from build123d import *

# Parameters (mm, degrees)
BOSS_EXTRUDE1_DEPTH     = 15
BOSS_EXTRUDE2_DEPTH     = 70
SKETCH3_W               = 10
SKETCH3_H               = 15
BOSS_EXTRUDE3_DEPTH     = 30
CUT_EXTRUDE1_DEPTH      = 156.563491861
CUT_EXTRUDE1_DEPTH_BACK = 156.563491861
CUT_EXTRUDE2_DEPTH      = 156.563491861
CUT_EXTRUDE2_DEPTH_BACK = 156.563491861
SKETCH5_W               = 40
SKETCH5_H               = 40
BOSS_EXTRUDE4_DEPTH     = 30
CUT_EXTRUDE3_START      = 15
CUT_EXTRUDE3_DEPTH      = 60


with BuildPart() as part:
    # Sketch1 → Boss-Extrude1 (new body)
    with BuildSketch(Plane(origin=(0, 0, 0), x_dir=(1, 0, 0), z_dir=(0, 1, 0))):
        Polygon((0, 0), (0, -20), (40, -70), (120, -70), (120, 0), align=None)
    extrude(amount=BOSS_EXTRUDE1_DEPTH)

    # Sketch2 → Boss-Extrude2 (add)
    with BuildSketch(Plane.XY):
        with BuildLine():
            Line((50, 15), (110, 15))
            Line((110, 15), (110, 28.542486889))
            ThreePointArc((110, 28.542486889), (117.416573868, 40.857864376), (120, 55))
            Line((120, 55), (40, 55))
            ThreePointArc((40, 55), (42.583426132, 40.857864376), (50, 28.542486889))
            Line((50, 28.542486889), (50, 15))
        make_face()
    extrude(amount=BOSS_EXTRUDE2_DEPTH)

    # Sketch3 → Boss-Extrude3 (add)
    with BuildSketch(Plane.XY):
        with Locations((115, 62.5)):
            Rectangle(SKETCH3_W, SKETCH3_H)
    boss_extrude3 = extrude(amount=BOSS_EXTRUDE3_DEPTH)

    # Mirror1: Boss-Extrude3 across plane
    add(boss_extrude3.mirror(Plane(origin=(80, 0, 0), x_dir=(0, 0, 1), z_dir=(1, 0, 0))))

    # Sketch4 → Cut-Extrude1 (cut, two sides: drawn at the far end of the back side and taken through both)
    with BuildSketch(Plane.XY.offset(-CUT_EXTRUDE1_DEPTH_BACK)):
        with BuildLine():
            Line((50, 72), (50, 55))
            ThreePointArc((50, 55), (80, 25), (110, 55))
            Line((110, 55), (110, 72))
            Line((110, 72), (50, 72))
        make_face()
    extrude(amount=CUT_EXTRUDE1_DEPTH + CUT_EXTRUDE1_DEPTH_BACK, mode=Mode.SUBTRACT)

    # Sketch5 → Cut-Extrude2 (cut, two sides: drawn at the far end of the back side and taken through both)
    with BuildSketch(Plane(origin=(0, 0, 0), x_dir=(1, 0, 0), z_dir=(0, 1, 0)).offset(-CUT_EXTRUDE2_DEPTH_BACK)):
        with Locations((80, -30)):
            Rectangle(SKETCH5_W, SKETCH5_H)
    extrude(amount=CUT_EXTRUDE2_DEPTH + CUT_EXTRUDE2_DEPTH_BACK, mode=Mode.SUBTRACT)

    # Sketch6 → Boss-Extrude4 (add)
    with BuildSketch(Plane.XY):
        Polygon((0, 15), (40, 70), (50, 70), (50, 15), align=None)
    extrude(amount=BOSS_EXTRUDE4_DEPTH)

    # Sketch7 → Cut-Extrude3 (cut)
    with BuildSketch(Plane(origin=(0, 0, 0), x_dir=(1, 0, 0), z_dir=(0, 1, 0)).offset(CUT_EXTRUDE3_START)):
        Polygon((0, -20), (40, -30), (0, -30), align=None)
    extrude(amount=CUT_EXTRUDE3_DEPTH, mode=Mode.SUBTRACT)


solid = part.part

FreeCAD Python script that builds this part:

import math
import FreeCAD as App
import Part
import Sketcher
Q = App.Units.Quantity

doc = App.newDocument("Part")
body = doc.addObject("PartDesign::Body", "Body")

sketch1 = body.newObject("Sketcher::SketchObject", "Sketch")
sketch1.AttachmentSupport = (doc.getObject("XZ_Plane"), [""])
sketch1.MapMode = "FlatFace"
sketch1.addGeometry(Part.LineSegment(App.Vector(0, 0, 0), App.Vector(0, 20, 0)), False)
sketch1.addGeometry(Part.LineSegment(App.Vector(0, 20, 0), App.Vector(40, 70, 0)), False)
sketch1.addGeometry(Part.LineSegment(App.Vector(40, 70, 0), App.Vector(120, 70, 0)), False)
sketch1.addGeometry(Part.LineSegment(App.Vector(120, 70, 0), App.Vector(120, 0, 0)), False)
sketch1.addGeometry(Part.LineSegment(App.Vector(120, 0, 0), App.Vector(0, 0, 0)), False)
sketch1.addConstraint(Sketcher.Constraint("Coincident", 0, 2, 1, 1))
sketch1.addConstraint(Sketcher.Constraint("Coincident", 1, 2, 2, 1))
sketch1.addConstraint(Sketcher.Constraint("Coincident", 2, 2, 3, 1))
sketch1.addConstraint(Sketcher.Constraint("Coincident", 3, 2, 4, 1))
sketch1.addConstraint(Sketcher.Constraint("Coincident", 4, 2, 0, 1))
sketch1.addConstraint(Sketcher.Constraint("Vertical", 0))
sketch1.addConstraint(Sketcher.Constraint("Horizontal", 2))
sketch1.addConstraint(Sketcher.Constraint("Vertical", 3))
sketch1.addConstraint(Sketcher.Constraint("Horizontal", 4))
sketch1.addConstraint(Sketcher.Constraint("Coincident", 4, 2, -1, 1))
sketch1.addConstraint(Sketcher.Constraint("DistanceX", 2, 1, 2, 2, Q("80 mm")))
sketch1.addConstraint(Sketcher.Constraint("DistanceX", 4, 2, 4, 1, Q("120 mm")))
sketch1.addConstraint(Sketcher.Constraint("DistanceY", 0, 1, 0, 2, Q("20 mm")))
sketch1.addConstraint(Sketcher.Constraint("DistanceY", 3, 2, 3, 1, Q("70 mm")))
pad1 = body.newObject("PartDesign::Pad", "Pad")
pad1.Profile = sketch1
pad1.Length = 15
pad1.Reversed = True

sketch2 = body.newObject("Sketcher::SketchObject", "Sketch001")
sketch2.AttachmentSupport = (doc.getObject("XY_Plane"), [""])
sketch2.MapMode = "FlatFace"
sketch2.addGeometry(Part.LineSegment(App.Vector(50, 15, 0), App.Vector(110, 15, 0)), False)
sketch2.addGeometry(Part.LineSegment(App.Vector(110, 15, 0), App.Vector(110, 29, 0)), False)
sketch2.addGeometry(Part.ArcOfCircle(Part.Circle(App.Vector(80, 55, 0), App.Vector(0, 0, 1), 40), math.radians(-41), math.radians(0)), False)
sketch2.addGeometry(Part.LineSegment(App.Vector(120, 55, 0), App.Vector(40, 55, 0)), False)
sketch2.addGeometry(Part.ArcOfCircle(Part.Circle(App.Vector(80, 55, 0), App.Vector(0, 0, 1), 40), math.radians(180), math.radians(221)), False)
sketch2.addGeometry(Part.LineSegment(App.Vector(50, 29, 0), App.Vector(50, 15, 0)), False)
sketch2.addConstraint(Sketcher.Constraint("Coincident", 0, 2, 1, 1))
sketch2.addConstraint(Sketcher.Constraint("Coincident", 1, 2, 2, 1))
sketch2.addConstraint(Sketcher.Constraint("Coincident", 2, 2, 3, 1))
sketch2.addConstraint(Sketcher.Constraint("Coincident", 3, 2, 4, 1))
sketch2.addConstraint(Sketcher.Constraint("Coincident", 4, 2, 5, 1))
sketch2.addConstraint(Sketcher.Constraint("Coincident", 5, 2, 0, 1))
sketch2.addConstraint(Sketcher.Constraint("Horizontal", 0))
sketch2.addConstraint(Sketcher.Constraint("Vertical", 1))
sketch2.addConstraint(Sketcher.Constraint("Horizontal", 3))
sketch2.addConstraint(Sketcher.Constraint("Vertical", 5))
sketch2.addConstraint(Sketcher.Constraint("Coincident", 4, 3, 2, 3))
sketch2.addConstraint(Sketcher.Constraint("Equal", 2, 4))
sketch2.addConstraint(Sketcher.Constraint("Horizontal", 4, 3, 2, 2))
sketch2.addConstraint(Sketcher.Constraint("Horizontal", 1, 2, 4, 2))
sketch2.addConstraint(Sketcher.Constraint("Radius", 2, Q("40 mm")))
sketch2.addConstraint(Sketcher.Constraint("DistanceX", 0, 1, 0, 2, Q("60 mm")))
sketch2.addConstraint(Sketcher.Constraint("DistanceX", -1, 1, 2, 3, Q("80 mm")))
sketch2.addConstraint(Sketcher.Constraint("DistanceY", -1, 1, 2, 3, Q("55 mm")))
sketch2.addConstraint(Sketcher.Constraint("DistanceY", -1, 1, 0, 2, Q("15 mm")))
pad2 = body.newObject("PartDesign::Pad", "Pad001")
pad2.Profile = sketch2
pad2.Length = 70

sketch3 = body.newObject("Sketcher::SketchObject", "Sketch002")
sketch3.AttachmentSupport = (doc.getObject("XY_Plane"), [""])
sketch3.MapMode = "FlatFace"
sketch3.addGeometry(Part.LineSegment(App.Vector(110, 70, 0), App.Vector(110, 55, 0)), False)
sketch3.addGeometry(Part.LineSegment(App.Vector(110, 55, 0), App.Vector(120, 55, 0)), False)
sketch3.addGeometry(Part.LineSegment(App.Vector(120, 55, 0), App.Vector(120, 70, 0)), False)
sketch3.addGeometry(Part.LineSegment(App.Vector(120, 70, 0), App.Vector(110, 70, 0)), False)
sketch3.addConstraint(Sketcher.Constraint("Coincident", 0, 2, 1, 1))
sketch3.addConstraint(Sketcher.Constraint("Coincident", 1, 2, 2, 1))
sketch3.addConstraint(Sketcher.Constraint("Coincident", 2, 2, 3, 1))
sketch3.addConstraint(Sketcher.Constraint("Coincident", 3, 2, 0, 1))
sketch3.addConstraint(Sketcher.Constraint("Vertical", 0))
sketch3.addConstraint(Sketcher.Constraint("Horizontal", 1))
sketch3.addConstraint(Sketcher.Constraint("Vertical", 2))
sketch3.addConstraint(Sketcher.Constraint("Horizontal", 3))
sketch3.addConstraint(Sketcher.Constraint("DistanceX", 1, 1, 1, 2, Q("10 mm")))
sketch3.addConstraint(Sketcher.Constraint("DistanceY", 0, 2, 0, 1, Q("15 mm")))
sketch3.addConstraint(Sketcher.Constraint("DistanceX", -1, 1, 0, 2, Q("110 mm")))
sketch3.addConstraint(Sketcher.Constraint("DistanceY", -1, 1, 0, 2, Q("55 mm")))
pad3 = body.newObject("PartDesign::Pad", "Pad002")
pad3.Profile = sketch3
pad3.Length = 30
doc.recompute()

datumplane = body.newObject("PartDesign::Plane", "DatumPlane")
datumplane.AttachmentSupport = (doc.getObject("YZ_Plane"), [""])
datumplane.MapMode = "FlatFace"
datumplane.AttachmentOffset = App.Placement(App.Vector(0, 0, 80), App.Rotation())
mirrored = body.newObject("PartDesign::Mirrored", "Mirrored")
mirrored.Originals = [pad3]
mirrored.MirrorPlane = (datumplane, [""])
body.Tip = mirrored

sketch4 = body.newObject("Sketcher::SketchObject", "Sketch003")
sketch4.AttachmentSupport = (doc.getObject("XY_Plane"), [""])
sketch4.MapMode = "FlatFace"
sketch4.addGeometry(Part.LineSegment(App.Vector(50, 72, 0), App.Vector(50, 55, 0)), False)
sketch4.addGeometry(Part.ArcOfCircle(Part.Circle(App.Vector(80, 55, 0), App.Vector(0, 0, 1), 30), math.radians(180), math.radians(360)), False)
sketch4.addGeometry(Part.LineSegment(App.Vector(110, 55, 0), App.Vector(110, 72, 0)), False)
sketch4.addGeometry(Part.LineSegment(App.Vector(110, 72, 0), App.Vector(50, 72, 0)), False)
sketch4.addConstraint(Sketcher.Constraint("Tangent", 0, 2, 1, 1))
sketch4.addConstraint(Sketcher.Constraint("Tangent", 1, 2, 2, 1))
sketch4.addConstraint(Sketcher.Constraint("Coincident", 2, 2, 3, 1))
sketch4.addConstraint(Sketcher.Constraint("Coincident", 3, 2, 0, 1))
sketch4.addConstraint(Sketcher.Constraint("Vertical", 0))
sketch4.addConstraint(Sketcher.Constraint("Vertical", 2))
sketch4.addConstraint(Sketcher.Constraint("Horizontal", 3))
sketch4.addConstraint(Sketcher.Constraint("Radius", 1, Q("30 mm")))
sketch4.addConstraint(Sketcher.Constraint("DistanceY", 0, 2, 0, 1, Q("17 mm")))
sketch4.addConstraint(Sketcher.Constraint("DistanceX", -1, 1, 1, 3, Q("80 mm")))
sketch4.addConstraint(Sketcher.Constraint("DistanceY", -1, 1, 1, 3, Q("55 mm")))
pocket1 = body.newObject("PartDesign::Pocket", "Pocket")
pocket1.Profile = sketch4
pocket1.Type = "ThroughAll"
pocket1.Midplane = True

sketch5 = body.newObject("Sketcher::SketchObject", "Sketch004")
sketch5.AttachmentSupport = (doc.getObject("XZ_Plane"), [""])
sketch5.MapMode = "FlatFace"
sketch5.addGeometry(Part.LineSegment(App.Vector(60, 10, 0), App.Vector(60, 50, 0)), False)
sketch5.addGeometry(Part.LineSegment(App.Vector(60, 50, 0), App.Vector(100, 50, 0)), False)
sketch5.addGeometry(Part.LineSegment(App.Vector(100, 50, 0), App.Vector(100, 10, 0)), False)
sketch5.addGeometry(Part.LineSegment(App.Vector(100, 10, 0), App.Vector(60, 10, 0)), False)
sketch5.addConstraint(Sketcher.Constraint("Coincident", 0, 2, 1, 1))
sketch5.addConstraint(Sketcher.Constraint("Coincident", 1, 2, 2, 1))
sketch5.addConstraint(Sketcher.Constraint("Coincident", 2, 2, 3, 1))
sketch5.addConstraint(Sketcher.Constraint("Coincident", 3, 2, 0, 1))
sketch5.addConstraint(Sketcher.Constraint("Vertical", 0))
sketch5.addConstraint(Sketcher.Constraint("Horizontal", 1))
sketch5.addConstraint(Sketcher.Constraint("Vertical", 2))
sketch5.addConstraint(Sketcher.Constraint("Horizontal", 3))
sketch5.addConstraint(Sketcher.Constraint("Equal", 3, 0))
sketch5.addConstraint(Sketcher.Constraint("DistanceX", 1, 1, 1, 2, Q("40 mm")))
sketch5.addConstraint(Sketcher.Constraint("DistanceX", -1, 1, 0, 2, Q("60 mm")))
sketch5.addConstraint(Sketcher.Constraint("DistanceY", -1, 1, 0, 2, Q("50 mm")))
pocket2 = body.newObject("PartDesign::Pocket", "Pocket001")
pocket2.Profile = sketch5
pocket2.Type = "ThroughAll"
pocket2.Midplane = True

sketch6 = body.newObject("Sketcher::SketchObject", "Sketch005")
sketch6.AttachmentSupport = (doc.getObject("XY_Plane"), [""])
sketch6.MapMode = "FlatFace"
sketch6.addGeometry(Part.LineSegment(App.Vector(40, 70, 0), App.Vector(0, 15, 0)), False)
sketch6.addGeometry(Part.LineSegment(App.Vector(0, 15, 0), App.Vector(50, 15, 0)), False)
sketch6.addGeometry(Part.LineSegment(App.Vector(50, 15, 0), App.Vector(50, 70, 0)), False)
sketch6.addGeometry(Part.LineSegment(App.Vector(50, 70, 0), App.Vector(40, 70, 0)), False)
sketch6.addConstraint(Sketcher.Constraint("Coincident", 0, 2, 1, 1))
sketch6.addConstraint(Sketcher.Constraint("Coincident", 1, 2, 2, 1))
sketch6.addConstraint(Sketcher.Constraint("Coincident", 2, 2, 3, 1))
sketch6.addConstraint(Sketcher.Constraint("Coincident", 3, 2, 0, 1))
sketch6.addConstraint(Sketcher.Constraint("Horizontal", 1))
sketch6.addConstraint(Sketcher.Constraint("Vertical", 2))
sketch6.addConstraint(Sketcher.Constraint("Horizontal", 3))
sketch6.addConstraint(Sketcher.Constraint("PointOnObject", 0, 2, -2))
sketch6.addConstraint(Sketcher.Constraint("DistanceX", 1, 1, 1, 2, Q("50 mm")))
sketch6.addConstraint(Sketcher.Constraint("DistanceX", 3, 2, 3, 1, Q("10 mm")))
sketch6.addConstraint(Sketcher.Constraint("DistanceY", 2, 1, 2, 2, Q("55 mm")))
sketch6.addConstraint(Sketcher.Constraint("DistanceY", -1, 1, 0, 2, Q("15 mm")))
pad4 = body.newObject("PartDesign::Pad", "Pad003")
pad4.Profile = sketch6
pad4.Length = 30

sketch7 = body.newObject("Sketcher::SketchObject", "Sketch006")
sketch7.AttachmentSupport = (doc.getObject("XZ_Plane"), [""])
sketch7.MapMode = "FlatFace"
sketch7.AttachmentOffset = App.Placement(App.Vector(0, 0, -15), App.Rotation())
sketch7.addGeometry(Part.LineSegment(App.Vector(40, 30, 0), App.Vector(0, 20, 0)), False)
sketch7.addGeometry(Part.LineSegment(App.Vector(0, 20, 0), App.Vector(0, 30, 0)), False)
sketch7.addGeometry(Part.LineSegment(App.Vector(0, 30, 0), App.Vector(40, 30, 0)), False)
sketch7.addConstraint(Sketcher.Constraint("Coincident", 0, 2, 1, 1))
sketch7.addConstraint(Sketcher.Constraint("Coincident", 1, 2, 2, 1))
sketch7.addConstraint(Sketcher.Constraint("Coincident", 2, 2, 0, 1))
sketch7.addConstraint(Sketcher.Constraint("Vertical", 1))
sketch7.addConstraint(Sketcher.Constraint("Horizontal", 2))
sketch7.addConstraint(Sketcher.Constraint("PointOnObject", 0, 2, -2))
sketch7.addConstraint(Sketcher.Constraint("DistanceX", 2, 1, 2, 2, Q("40 mm")))
sketch7.addConstraint(Sketcher.Constraint("DistanceY", 1, 1, 1, 2, Q("10 mm")))
sketch7.addConstraint(Sketcher.Constraint("DistanceY", -1, 1, 0, 2, Q("20 mm")))
pocket3 = body.newObject("PartDesign::Pocket", "Pocket002")
pocket3.Profile = sketch7
pocket3.Length = 60

doc.recompute()
